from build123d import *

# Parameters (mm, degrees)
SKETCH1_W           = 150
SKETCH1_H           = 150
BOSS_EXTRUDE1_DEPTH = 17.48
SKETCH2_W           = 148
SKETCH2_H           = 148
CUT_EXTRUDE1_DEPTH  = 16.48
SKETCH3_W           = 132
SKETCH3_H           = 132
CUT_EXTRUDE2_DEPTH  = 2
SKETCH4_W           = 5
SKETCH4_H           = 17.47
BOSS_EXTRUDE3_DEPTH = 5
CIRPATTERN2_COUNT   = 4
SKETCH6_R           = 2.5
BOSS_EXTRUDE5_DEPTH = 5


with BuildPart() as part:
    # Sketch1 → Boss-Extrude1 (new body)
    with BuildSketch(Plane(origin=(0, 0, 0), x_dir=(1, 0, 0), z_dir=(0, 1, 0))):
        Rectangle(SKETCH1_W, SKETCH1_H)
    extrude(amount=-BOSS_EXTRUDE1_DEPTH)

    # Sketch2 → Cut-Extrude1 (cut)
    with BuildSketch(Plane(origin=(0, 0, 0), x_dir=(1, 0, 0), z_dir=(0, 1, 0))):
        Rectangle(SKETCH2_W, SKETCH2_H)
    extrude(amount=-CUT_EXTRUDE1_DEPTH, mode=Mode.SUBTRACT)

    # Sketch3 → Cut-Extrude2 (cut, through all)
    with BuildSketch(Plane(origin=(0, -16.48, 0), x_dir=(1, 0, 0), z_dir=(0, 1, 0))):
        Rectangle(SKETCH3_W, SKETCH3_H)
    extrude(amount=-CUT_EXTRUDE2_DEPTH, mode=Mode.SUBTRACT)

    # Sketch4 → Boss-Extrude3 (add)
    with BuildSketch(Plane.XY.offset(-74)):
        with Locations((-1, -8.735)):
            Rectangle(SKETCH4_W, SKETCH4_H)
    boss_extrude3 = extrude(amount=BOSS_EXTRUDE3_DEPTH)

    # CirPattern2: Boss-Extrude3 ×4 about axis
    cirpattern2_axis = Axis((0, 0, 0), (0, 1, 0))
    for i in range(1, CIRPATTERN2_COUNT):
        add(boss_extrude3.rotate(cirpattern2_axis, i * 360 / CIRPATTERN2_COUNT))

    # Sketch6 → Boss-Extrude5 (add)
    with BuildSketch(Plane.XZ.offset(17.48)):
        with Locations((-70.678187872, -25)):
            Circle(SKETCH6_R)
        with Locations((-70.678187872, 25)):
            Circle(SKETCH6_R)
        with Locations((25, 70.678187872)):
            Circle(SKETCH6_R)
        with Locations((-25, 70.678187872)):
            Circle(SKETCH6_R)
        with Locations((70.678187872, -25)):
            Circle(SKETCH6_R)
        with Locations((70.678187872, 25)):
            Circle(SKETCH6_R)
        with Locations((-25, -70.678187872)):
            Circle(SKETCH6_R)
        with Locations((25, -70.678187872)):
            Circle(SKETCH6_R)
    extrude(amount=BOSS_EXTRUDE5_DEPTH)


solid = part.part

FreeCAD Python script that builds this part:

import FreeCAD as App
import Part
import Sketcher
from FreeCAD import Vector


def add_polygon(sketch, points):
    """Adds a closed chain of lines whose ends are joined by coincident constraints."""
    first, n = sketch.GeometryCount, len(points)
    for a, b in zip(points, points[1:] + points[:1]):
        sketch.addGeometry(Part.LineSegment(App.Vector(*a, 0), App.Vector(*b, 0)), False)
    for i in range(n):
        sketch.addConstraint(Sketcher.Constraint("Coincident", first + i, 2, first + (i + 1) % n, 1))

doc = App.newDocument("Part")
params = doc.addObject("Spreadsheet::Sheet", "Params")
for row, (alias, value) in enumerate([
    ("sketch1_width", "150 mm"),
    ("pad1_length", "17.48 mm"),
    ("sketch2_width", "148 mm"),
    ("pocket1_length", "16.48 mm"),
    ("sketch3_width", "132 mm"),
    ("sketch4_width", "5 mm"),
    ("sketch4_height", "17.47 mm"),
    ("pad2_length", "5 mm"),
    ("sketch5_diameter", "5 mm"),
    ("pad3_length", "5 mm"),
], start=1):
    params.set(f"A{row}", alias)
    params.set(f"B{row}", "=" + value)
    params.setAlias(f"B{row}", alias)

body = doc.addObject("PartDesign::Body", "Body")

sketch1 = body.newObject("Sketcher::SketchObject", "Sketch")
sketch1.AttachmentSupport = (doc.getObject("XZ_Plane"), [""])
sketch1.MapMode = "FlatFace"
add_polygon(sketch1, [(-75, -75), (-75, 75), (75, 75), (75, -75)])
sketch1.addConstraint([
    Sketcher.Constraint("Vertical", 0),
    Sketcher.Constraint("Horizontal", 1),
    Sketcher.Constraint("Vertical", 2),
    Sketcher.Constraint("Horizontal", 3),
    Sketcher.Constraint("Symmetric", 0, 2, 2, 2, -1, 1),
    Sketcher.Constraint("Equal", 3, 0),
    Sketcher.Constraint("DistanceX", 1, 1, 1, 2, 150.0),
])
sketch1.setExpression("Constraints[10]", "Params.sketch1_width")
pad1 = body.newObject("PartDesign::Pad", "Pad")
pad1.Profile = sketch1
pad1.setExpression("Length", "Params.pad1_length")

sketch2 = body.newObject("Sketcher::SketchObject", "Sketch001")
sketch2.AttachmentSupport = (doc.getObject("XZ_Plane"), [""])
sketch2.MapMode = "FlatFace"
add_polygon(sketch2, [(-74, -74), (-74, 74), (74, 74), (74, -74)])
sketch2.addConstraint([
    Sketcher.Constraint("Vertical", 0),
    Sketcher.Constraint("Horizontal", 1),
    Sketcher.Constraint("Vertical", 2),
    Sketcher.Constraint("Horizontal", 3),
    Sketcher.Constraint("Symmetric", 0, 2, 2, 2, -1, 1),
    Sketcher.Constraint("Equal", 3, 0),
    Sketcher.Constraint("DistanceX", 1, 1, 1, 2, 148.0),
])
sketch2.setExpression("Constraints[10]", "Params.sketch2_width")
pocket1 = body.newObject("PartDesign::Pocket", "Pocket")
pocket1.Profile = sketch2
pocket1.setExpression("Length", "Params.pocket1_length")
pocket1.Reversed = True

sketch3 = body.newObject("Sketcher::SketchObject", "Sketch002")
sketch3.AttachmentSupport = (doc.getObject("XZ_Plane"), [""])
sketch3.MapMode = "FlatFace"
sketch3.AttachmentOffset = App.Placement(Vector(0, 0, 16.48), App.Rotation())
add_polygon(sketch3, [(-66, -66), (-66, 66), (66, 66), (66, -66)])
sketch3.addConstraint([
    Sketcher.Constraint("Vertical", 0),
    Sketcher.Constraint("Horizontal", 1),
    Sketcher.Constraint("Vertical", 2),
    Sketcher.Constraint("Horizontal", 3),
    Sketcher.Constraint("Symmetric", 0, 2, 2, 2, -1, 1),
    Sketcher.Constraint("Equal", 3, 0),
    Sketcher.Constraint("DistanceX", 1, 1, 1, 2, 132.0),
])
sketch3.setExpression("Constraints[10]", "Params.sketch3_width")
pocket2 = body.newObject("PartDesign::Pocket", "Pocket001")
pocket2.Profile = sketch3
pocket2.Type = "ThroughAll"
pocket2.Reversed = True

sketch4 = body.newObject("Sketcher::SketchObject", "Sketch003")
sketch4.AttachmentSupport = (doc.getObject("XY_Plane"), [""])
sketch4.MapMode = "FlatFace"
sketch4.AttachmentOffset = App.Placement(Vector(0, 0, -74), App.Rotation())
add_polygon(sketch4, [(-3.5, 0), (-3.5, -17.47), (1.5, -17.47), (1.5, 0)])
sketch4.addConstraint([
    Sketcher.Constraint("Vertical", 0),
    Sketcher.Constraint("Horizontal", 1),
    Sketcher.Constraint("Vertical", 2),
    Sketcher.Constraint("Horizontal", 3),
    Sketcher.Constraint("PointOnObject", 2, 2, -1),
    Sketcher.Constraint("DistanceX", 1, 1, 1, 2, 5.0),
    Sketcher.Constraint("DistanceY", 0, 2, 0, 1, 17.47),
    Sketcher.Constraint("DistanceX", 0, 2, -1, 1, 3.5),
])
sketch4.setExpression("Constraints[9]", "Params.sketch4_width")
sketch4.setExpression("Constraints[10]", "Params.sketch4_height")
pad2 = body.newObject("PartDesign::Pad", "Pad001")
pad2.Profile = sketch4
pad2.setExpression("Length", "Params.pad2_length")
doc.recompute()

polarpattern = body.newObject("PartDesign::PolarPattern", "PolarPattern")
polarpattern.Originals = [pad2]
polarpattern.Axis = (doc.getObject("Y_Axis"), [""])
polarpattern.Angle = 360
polarpattern.Occurrences = 4
body.Tip = polarpattern

sketch5 = body.newObject("Sketcher::SketchObject", "Sketch004")
sketch5.AttachmentSupport = (doc.getObject("XZ_Plane"), [""])
sketch5.MapMode = "FlatFace"
sketch5.AttachmentOffset = App.Placement(Vector(0, 0, 17.48), App.Rotation())
sketch5.addGeometry([
    Part.Circle(Vector(-70.678188, -25, 0), Vector(0, 0, 1), 2.5),
    Part.Circle(Vector(-70.678188, 25, 0), Vector(0, 0, 1), 2.5),
    Part.Circle(Vector(25, 70.678188, 0), Vector(0, 0, 1), 2.5),
    Part.Circle(Vector(-25, 70.678188, 0), Vector(0, 0, 1), 2.5),
    Part.Circle(Vector(70.678188, -25, 0), Vector(0, 0, 1), 2.5),
    Part.Circle(Vector(70.678188, 25, 0), Vector(0, 0, 1), 2.5),
    Part.Circle(Vector(-25, -70.678188, 0), Vector(0, 0, 1), 2.5),
    Part.Circle(Vector(25, -70.678188, 0), Vector(0, 0, 1), 2.5),
], False)
sketch5.addConstraint([
    Sketcher.Constraint("Equal", 0, 1),
    Sketcher.Constraint("Equal", 1, 2),
    Sketcher.Constraint("Equal", 2, 3),
    Sketcher.Constraint("Equal", 3, 4),
    Sketcher.Constraint("Equal", 4, 5),
    Sketcher.Constraint("Equal", 5, 6),
    Sketcher.Constraint("Equal", 6, 7),
    Sketcher.Constraint("Symmetric", 1, 3, 4, 3, -1, 1),
    Sketcher.Constraint("Symmetric", 0, 3, 5, 3, -1, 1),
    Sketcher.Constraint("Symmetric", 2, 3, 6, 3, -1, 1),
    Sketcher.Constraint("Symmetric", 3, 3, 7, 3, -1, 1),
    Sketcher.Constraint("Symmetric", 2, 3, 3, 3, -2),
    Sketcher.Constraint("Symmetric", 0, 3, 4, 3, -2),
    Sketcher.Constraint("Diameter", 0, 5.0),
    Sketcher.Constraint("DistanceY", 0, 3, -1, 1, 25.0),
    Sketcher.Constraint("DistanceX", -1, 1, 2, 3, 25.0),
    Sketcher.Constraint("DistanceX", 0, 3, -1, 1, 70.678188),
    Sketcher.Constraint("DistanceY", -1, 1, 2, 3, 70.678188),
])
sketch5.setExpression("Constraints[13]", "Params.sketch5_diameter")
pad3 = body.newObject("PartDesign::Pad", "Pad002")
pad3.Profile = sketch5
pad3.setExpression("Length", "Params.pad3_length")

doc.recompute()
